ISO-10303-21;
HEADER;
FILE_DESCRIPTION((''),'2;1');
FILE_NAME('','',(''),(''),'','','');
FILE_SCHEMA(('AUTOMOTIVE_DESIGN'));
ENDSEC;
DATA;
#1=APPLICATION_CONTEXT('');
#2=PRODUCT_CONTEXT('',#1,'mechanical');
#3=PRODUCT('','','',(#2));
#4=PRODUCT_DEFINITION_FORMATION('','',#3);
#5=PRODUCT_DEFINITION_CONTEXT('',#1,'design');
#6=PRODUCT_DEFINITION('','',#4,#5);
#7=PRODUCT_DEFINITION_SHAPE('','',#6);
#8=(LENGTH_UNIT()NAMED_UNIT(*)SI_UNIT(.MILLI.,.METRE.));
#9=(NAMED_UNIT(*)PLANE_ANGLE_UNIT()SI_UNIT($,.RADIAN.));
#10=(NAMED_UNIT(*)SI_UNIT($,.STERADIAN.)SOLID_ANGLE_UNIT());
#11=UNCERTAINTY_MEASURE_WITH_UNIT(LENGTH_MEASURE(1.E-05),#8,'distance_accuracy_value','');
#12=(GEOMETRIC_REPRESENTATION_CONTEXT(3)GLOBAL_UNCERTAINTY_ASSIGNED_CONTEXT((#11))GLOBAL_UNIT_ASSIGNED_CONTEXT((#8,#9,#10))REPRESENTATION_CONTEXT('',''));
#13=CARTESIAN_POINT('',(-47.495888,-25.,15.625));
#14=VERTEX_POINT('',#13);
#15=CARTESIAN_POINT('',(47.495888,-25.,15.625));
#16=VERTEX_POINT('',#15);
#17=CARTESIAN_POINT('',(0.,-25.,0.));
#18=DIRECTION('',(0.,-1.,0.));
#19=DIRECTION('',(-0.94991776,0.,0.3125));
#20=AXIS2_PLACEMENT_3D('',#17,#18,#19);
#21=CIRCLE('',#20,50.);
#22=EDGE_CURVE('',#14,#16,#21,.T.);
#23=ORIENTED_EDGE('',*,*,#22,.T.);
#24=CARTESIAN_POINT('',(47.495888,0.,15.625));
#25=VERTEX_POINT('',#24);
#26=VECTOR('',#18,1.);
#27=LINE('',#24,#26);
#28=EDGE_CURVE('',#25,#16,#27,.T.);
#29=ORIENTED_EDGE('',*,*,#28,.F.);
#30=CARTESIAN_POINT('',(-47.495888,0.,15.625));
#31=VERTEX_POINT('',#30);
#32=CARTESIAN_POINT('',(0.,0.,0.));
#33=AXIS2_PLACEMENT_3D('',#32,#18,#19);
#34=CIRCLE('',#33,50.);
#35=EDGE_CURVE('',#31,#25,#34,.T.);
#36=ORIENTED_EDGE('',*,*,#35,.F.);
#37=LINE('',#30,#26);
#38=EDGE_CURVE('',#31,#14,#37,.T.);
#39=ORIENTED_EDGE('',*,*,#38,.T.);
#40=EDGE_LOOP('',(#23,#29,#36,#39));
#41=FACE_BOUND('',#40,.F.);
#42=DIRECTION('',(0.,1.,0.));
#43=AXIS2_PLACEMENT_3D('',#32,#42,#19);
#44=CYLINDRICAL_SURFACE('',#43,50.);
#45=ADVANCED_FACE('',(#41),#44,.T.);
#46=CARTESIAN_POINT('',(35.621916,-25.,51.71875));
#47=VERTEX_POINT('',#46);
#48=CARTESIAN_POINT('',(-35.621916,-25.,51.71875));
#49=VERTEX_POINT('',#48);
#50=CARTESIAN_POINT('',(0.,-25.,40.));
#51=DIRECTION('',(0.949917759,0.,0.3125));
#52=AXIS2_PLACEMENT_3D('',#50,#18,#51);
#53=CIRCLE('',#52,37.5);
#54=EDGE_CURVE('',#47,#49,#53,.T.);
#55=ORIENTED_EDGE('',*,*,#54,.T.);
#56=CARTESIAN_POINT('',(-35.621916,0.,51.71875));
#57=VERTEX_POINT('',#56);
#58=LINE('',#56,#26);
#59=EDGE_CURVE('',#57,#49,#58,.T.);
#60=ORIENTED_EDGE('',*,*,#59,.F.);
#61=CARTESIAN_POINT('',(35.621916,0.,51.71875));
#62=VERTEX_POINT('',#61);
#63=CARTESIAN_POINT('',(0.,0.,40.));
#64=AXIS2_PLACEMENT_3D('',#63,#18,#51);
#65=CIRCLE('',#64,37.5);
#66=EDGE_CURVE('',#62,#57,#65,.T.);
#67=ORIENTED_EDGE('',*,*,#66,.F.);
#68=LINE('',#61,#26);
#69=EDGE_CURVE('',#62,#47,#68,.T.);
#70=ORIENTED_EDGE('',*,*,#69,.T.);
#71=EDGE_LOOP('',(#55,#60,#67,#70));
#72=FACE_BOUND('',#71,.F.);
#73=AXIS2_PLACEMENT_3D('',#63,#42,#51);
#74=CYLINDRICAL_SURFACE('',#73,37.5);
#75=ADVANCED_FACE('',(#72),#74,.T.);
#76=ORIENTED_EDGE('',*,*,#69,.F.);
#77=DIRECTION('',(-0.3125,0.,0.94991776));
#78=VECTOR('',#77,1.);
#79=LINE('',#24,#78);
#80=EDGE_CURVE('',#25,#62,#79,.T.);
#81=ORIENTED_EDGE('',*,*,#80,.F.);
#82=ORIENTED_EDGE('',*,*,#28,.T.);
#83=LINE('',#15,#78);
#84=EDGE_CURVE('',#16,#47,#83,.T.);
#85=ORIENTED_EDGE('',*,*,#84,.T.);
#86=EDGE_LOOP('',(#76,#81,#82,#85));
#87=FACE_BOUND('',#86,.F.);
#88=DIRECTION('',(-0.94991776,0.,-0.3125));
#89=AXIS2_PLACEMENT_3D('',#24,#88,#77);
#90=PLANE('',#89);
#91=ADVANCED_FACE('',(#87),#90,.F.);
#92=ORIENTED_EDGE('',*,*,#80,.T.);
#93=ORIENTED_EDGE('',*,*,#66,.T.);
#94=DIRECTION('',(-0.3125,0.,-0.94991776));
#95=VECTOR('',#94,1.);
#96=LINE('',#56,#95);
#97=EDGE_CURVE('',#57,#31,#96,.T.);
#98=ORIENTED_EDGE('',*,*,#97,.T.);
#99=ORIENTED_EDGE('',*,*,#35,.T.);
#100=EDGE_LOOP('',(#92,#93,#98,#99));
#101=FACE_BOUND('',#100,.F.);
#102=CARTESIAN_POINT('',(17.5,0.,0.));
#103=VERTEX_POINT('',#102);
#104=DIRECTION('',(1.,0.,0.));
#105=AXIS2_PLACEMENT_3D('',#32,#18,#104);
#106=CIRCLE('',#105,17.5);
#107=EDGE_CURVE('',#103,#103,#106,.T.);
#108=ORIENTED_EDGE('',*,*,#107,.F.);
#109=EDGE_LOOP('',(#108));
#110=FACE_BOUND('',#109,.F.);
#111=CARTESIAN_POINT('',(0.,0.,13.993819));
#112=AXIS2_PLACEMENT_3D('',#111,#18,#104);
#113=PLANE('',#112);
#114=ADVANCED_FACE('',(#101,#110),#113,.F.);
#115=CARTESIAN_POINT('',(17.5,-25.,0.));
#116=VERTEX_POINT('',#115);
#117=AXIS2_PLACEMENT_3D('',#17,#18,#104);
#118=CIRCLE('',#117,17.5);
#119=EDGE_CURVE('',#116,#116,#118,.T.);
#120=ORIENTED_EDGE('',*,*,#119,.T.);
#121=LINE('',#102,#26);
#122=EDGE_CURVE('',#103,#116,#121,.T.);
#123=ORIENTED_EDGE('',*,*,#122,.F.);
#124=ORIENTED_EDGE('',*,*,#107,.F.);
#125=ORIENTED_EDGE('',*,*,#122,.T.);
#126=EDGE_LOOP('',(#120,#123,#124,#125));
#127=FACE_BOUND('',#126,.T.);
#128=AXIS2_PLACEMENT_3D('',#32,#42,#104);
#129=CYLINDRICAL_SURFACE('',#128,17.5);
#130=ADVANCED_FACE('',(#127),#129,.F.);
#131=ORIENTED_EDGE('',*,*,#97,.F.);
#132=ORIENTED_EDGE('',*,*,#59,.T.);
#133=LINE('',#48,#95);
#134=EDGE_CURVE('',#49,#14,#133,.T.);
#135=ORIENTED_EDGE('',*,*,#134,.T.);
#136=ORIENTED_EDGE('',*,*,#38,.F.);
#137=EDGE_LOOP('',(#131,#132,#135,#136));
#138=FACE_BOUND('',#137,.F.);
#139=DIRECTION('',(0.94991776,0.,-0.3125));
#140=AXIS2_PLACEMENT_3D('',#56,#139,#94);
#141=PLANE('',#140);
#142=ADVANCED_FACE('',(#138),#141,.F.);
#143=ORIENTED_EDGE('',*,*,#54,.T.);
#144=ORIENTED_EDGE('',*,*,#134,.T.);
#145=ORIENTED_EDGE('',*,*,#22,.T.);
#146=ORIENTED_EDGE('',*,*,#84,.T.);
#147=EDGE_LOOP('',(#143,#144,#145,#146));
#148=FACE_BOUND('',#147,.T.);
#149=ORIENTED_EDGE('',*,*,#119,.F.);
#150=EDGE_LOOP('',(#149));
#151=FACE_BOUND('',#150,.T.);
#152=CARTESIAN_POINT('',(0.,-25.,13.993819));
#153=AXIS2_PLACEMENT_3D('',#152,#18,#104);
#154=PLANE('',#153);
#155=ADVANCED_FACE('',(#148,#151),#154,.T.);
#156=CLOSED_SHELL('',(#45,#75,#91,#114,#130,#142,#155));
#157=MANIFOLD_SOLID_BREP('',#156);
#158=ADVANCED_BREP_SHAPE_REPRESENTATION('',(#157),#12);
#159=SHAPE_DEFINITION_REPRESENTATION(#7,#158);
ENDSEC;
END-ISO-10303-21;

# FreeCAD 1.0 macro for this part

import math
import FreeCAD as App
import Part
import Sketcher
Q = App.Units.Quantity

doc = App.newDocument("Part")
body = doc.addObject("PartDesign::Body", "Body")

# Sketch on XZ plane
sketch1 = doc.addObject("Sketcher::SketchObject", "Sketch")
body.addObject(sketch1)
sketch1.AttachmentSupport = (doc.XZ_Plane, [""])
sketch1.MapMode = "FlatFace"
sketch1.addGeometry([
    Part.LineSegment(App.Vector(47, 16, 0), App.Vector(36, 52, 0)),  # 0
    Part.ArcOfCircle(Part.Circle(App.Vector(0, 40, 0), App.Vector(0, 0, 1), 38), math.radians(18), math.radians(162)),  # 1
    Part.LineSegment(App.Vector(-36, 52, 0), App.Vector(-47, 16, 0)),  # 2
    Part.ArcOfCircle(Part.Circle(App.Vector(0, 0, 0), App.Vector(0, 0, 1), 50), math.radians(162), math.radians(378)),  # 3
    Part.Circle(App.Vector(0, 0, 0), App.Vector(0, 0, 1), 18),  # 4
], False)
sketch1.addConstraint([
    Sketcher.Constraint("Tangent", 0, 2, 1, 1),
    Sketcher.Constraint("Tangent", 1, 2, 2, 1),
    Sketcher.Constraint("Tangent", 2, 2, 3, 1),
    Sketcher.Constraint("Tangent", 3, 2, 0, 1),
    Sketcher.Constraint("Coincident", 3, 3, -1, 1),
    Sketcher.Constraint("Coincident", 4, 3, -1, 1),
    Sketcher.Constraint("PointOnObject", 1, 3, -2),
    Sketcher.Constraint("Diameter", 4, Q("35 mm")),
    Sketcher.Constraint("Radius", 3, Q("50 mm")),
    Sketcher.Constraint("Radius", 1, Q("37.5 mm")),
    Sketcher.Constraint("DistanceY", -1, 1, 1, 3, Q("40 mm")),
])
pad1 = doc.addObject("PartDesign::Pad", "Pad")
body.addObject(pad1)
pad1.Profile = sketch1
pad1.Length = 25

doc.recompute()
